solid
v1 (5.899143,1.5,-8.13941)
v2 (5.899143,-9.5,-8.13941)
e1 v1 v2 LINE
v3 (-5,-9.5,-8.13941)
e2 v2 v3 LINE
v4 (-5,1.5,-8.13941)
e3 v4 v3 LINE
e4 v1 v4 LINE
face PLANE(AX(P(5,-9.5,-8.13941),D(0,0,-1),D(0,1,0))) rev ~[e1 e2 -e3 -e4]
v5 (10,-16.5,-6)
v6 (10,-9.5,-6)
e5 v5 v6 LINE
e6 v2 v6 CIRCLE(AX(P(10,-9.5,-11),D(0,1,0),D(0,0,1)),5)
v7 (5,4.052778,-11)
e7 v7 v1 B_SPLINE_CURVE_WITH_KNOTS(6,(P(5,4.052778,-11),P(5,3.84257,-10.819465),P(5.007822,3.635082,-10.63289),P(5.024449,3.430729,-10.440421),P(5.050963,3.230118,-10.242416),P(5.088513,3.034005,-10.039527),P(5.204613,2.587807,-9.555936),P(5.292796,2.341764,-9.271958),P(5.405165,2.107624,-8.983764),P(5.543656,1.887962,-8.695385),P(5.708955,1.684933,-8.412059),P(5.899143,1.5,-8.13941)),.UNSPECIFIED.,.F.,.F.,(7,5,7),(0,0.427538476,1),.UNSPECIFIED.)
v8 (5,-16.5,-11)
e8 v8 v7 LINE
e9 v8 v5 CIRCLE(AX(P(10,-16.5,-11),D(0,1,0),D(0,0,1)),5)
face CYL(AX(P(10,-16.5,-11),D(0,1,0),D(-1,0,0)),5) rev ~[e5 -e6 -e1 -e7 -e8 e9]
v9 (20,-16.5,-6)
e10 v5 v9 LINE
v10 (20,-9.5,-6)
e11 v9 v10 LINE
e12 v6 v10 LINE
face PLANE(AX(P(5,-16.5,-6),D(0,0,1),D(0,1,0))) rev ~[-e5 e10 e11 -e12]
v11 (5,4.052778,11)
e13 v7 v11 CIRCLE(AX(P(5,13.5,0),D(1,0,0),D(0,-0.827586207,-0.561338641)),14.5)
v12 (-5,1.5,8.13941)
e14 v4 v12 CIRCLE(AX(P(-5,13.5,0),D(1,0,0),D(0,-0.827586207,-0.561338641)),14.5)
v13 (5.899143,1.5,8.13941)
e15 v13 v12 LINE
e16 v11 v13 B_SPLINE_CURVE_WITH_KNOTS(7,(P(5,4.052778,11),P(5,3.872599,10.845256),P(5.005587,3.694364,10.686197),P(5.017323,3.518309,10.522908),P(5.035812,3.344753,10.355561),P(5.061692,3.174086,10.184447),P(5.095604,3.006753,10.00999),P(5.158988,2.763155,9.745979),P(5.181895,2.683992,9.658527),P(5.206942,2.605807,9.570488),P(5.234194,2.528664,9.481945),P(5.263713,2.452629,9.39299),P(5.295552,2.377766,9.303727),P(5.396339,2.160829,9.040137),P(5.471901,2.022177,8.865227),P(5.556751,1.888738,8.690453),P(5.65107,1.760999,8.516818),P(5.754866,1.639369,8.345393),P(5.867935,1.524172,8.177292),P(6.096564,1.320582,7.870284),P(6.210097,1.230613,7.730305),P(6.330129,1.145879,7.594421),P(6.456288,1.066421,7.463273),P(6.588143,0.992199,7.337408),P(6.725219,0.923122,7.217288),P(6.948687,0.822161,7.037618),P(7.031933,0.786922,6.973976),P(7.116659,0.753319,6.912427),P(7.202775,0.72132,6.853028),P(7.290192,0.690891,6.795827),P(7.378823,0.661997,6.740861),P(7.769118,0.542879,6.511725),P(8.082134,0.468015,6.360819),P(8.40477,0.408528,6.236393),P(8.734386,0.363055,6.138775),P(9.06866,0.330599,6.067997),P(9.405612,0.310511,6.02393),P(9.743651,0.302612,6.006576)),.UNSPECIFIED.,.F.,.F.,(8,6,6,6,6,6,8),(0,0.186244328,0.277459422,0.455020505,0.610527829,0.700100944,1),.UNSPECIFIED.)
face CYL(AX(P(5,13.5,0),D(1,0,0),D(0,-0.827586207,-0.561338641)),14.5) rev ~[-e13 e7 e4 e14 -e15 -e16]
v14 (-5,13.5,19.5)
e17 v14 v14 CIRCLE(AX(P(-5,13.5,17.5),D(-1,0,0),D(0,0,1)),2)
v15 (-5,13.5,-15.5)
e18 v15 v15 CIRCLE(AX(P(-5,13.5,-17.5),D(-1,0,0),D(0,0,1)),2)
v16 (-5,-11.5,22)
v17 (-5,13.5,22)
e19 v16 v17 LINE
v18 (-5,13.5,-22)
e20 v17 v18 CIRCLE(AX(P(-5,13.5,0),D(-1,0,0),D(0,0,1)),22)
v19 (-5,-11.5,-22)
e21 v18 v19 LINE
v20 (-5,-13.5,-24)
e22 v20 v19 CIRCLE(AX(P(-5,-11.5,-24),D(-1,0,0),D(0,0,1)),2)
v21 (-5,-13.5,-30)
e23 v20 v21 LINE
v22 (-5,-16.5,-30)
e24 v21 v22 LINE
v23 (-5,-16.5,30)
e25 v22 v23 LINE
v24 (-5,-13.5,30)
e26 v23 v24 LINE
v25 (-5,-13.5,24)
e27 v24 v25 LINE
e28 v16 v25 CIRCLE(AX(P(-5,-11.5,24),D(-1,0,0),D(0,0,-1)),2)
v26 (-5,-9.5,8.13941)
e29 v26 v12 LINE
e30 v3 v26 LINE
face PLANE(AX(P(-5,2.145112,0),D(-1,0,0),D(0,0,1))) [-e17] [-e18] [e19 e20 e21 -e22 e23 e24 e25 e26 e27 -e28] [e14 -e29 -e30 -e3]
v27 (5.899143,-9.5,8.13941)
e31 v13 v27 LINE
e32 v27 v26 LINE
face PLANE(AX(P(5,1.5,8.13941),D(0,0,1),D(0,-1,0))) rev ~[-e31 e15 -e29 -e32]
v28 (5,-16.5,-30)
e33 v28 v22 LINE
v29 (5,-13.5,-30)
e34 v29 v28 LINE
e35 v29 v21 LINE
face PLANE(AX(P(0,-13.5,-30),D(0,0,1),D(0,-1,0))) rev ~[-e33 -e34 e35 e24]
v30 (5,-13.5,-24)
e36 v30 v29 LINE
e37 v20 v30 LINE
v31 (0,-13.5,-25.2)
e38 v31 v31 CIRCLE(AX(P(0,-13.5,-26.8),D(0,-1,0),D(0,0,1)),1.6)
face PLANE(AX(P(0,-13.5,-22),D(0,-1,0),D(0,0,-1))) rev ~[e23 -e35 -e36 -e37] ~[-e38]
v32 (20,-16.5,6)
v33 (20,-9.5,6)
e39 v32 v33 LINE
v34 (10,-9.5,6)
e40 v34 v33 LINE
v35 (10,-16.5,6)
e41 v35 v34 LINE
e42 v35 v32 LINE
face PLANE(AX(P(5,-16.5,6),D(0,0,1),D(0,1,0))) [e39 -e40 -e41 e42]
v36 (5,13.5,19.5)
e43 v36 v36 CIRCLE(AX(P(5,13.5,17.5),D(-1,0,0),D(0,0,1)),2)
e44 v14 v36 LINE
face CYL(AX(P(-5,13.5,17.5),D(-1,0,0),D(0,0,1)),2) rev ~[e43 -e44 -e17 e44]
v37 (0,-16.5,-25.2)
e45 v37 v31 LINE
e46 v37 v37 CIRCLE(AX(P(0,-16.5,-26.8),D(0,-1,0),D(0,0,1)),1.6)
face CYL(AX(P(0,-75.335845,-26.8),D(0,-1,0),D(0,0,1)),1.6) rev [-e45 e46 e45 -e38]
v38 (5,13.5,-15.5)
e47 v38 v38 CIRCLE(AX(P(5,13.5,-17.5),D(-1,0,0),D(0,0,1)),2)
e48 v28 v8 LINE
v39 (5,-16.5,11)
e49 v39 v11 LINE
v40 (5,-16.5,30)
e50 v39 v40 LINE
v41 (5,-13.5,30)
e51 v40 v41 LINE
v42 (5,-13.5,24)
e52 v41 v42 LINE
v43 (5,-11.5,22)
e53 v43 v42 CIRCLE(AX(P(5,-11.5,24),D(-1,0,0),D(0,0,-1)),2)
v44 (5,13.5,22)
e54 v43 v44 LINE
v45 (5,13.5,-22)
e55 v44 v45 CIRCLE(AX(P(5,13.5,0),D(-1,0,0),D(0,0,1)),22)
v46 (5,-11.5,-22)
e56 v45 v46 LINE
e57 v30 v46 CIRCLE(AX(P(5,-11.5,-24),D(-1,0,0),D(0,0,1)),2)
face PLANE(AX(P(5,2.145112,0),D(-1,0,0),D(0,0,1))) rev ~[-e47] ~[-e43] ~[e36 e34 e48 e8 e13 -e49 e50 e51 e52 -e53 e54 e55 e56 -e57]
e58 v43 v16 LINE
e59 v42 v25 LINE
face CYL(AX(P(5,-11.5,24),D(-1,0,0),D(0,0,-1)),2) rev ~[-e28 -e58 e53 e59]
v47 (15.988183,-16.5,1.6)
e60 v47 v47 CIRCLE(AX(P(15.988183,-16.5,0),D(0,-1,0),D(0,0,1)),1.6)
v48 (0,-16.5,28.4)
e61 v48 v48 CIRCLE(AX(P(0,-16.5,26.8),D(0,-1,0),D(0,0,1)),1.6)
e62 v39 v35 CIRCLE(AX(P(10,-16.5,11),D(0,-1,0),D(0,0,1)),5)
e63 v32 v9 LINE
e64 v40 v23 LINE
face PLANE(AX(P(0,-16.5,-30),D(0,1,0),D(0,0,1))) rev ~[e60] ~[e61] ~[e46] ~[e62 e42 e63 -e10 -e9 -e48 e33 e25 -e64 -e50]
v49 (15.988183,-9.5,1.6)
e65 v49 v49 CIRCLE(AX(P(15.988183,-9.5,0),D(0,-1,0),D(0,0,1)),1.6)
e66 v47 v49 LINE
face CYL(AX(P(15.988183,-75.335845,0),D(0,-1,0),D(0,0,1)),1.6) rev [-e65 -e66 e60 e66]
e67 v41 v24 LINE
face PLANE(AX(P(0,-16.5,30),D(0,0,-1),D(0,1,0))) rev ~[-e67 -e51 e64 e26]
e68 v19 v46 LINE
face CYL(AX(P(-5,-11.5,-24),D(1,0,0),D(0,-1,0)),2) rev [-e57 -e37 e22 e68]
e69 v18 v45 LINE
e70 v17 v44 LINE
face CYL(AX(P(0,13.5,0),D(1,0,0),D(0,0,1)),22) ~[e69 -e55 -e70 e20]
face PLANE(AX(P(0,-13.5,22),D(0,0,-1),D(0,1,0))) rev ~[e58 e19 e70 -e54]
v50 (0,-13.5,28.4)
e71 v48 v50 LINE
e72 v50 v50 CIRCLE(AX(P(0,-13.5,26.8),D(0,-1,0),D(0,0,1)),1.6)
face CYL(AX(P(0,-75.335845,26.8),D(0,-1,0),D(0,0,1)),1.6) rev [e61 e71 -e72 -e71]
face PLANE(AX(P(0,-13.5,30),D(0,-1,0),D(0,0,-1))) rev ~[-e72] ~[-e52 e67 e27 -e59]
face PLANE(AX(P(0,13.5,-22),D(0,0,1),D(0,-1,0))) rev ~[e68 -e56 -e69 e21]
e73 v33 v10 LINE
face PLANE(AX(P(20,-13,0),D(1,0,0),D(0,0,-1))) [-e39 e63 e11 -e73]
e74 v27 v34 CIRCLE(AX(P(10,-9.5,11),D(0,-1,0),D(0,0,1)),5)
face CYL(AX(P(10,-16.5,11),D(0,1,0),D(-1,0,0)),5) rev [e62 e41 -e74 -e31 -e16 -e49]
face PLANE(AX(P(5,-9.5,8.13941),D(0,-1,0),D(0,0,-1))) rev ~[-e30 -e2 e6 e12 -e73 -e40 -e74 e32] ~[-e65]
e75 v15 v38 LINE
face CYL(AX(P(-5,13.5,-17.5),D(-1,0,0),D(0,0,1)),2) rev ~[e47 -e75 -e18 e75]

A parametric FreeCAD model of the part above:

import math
import FreeCAD as App
import Part
import Sketcher
Q = App.Units.Quantity


def edges_at(feature, points):
    """Names of the edges that pass closest to the given points."""
    edges = feature.Shape.Edges
    near = lambda p: min(range(len(edges)), key=lambda i: edges[i].distToShape(Part.Vertex(*p))[0])
    return sorted({f"Edge{near(p) + 1}" for p in points})

doc = App.newDocument("Part")
body = doc.addObject("PartDesign::Body", "Body")

# Sketch on YZ plane
sketch1 = body.newObject("Sketcher::SketchObject", "Sketch")
sketch1.AttachmentSupport = (doc.getObject("YZ_Plane"), [""])
sketch1.MapMode = "FlatFace"
sketch1.addGeometry([
    Part.LineSegment(App.Vector(-13.5, -30, 0), App.Vector(-13.5, -22, 0)),  # 0
    Part.LineSegment(App.Vector(-13.5, -22, 0), App.Vector(13.5, -22, 0)),  # 1
    Part.ArcOfCircle(Part.Circle(App.Vector(13.5, 0, 0), App.Vector(0, 0, 1), 22), math.radians(-90), math.radians(90)),  # 2
    Part.LineSegment(App.Vector(13.5, 22, 0), App.Vector(-13.5, 22, 0)),  # 3
    Part.LineSegment(App.Vector(-13.5, 22, 0), App.Vector(-13.5, 30, 0)),  # 4
    Part.LineSegment(App.Vector(-13.5, 30, 0), App.Vector(-16.5, 30, 0)),  # 5
    Part.LineSegment(App.Vector(-16.5, 30, 0), App.Vector(-16.5, -30, 0)),  # 6
    Part.LineSegment(App.Vector(-16.5, -30, 0), App.Vector(-13.5, -30, 0)),  # 7
], False)
sketch1.addConstraint([
    Sketcher.Constraint("Coincident", 0, 2, 1, 1),
    Sketcher.Constraint("Tangent", 1, 2, 2, 1),
    Sketcher.Constraint("Tangent", 2, 2, 3, 1),
    Sketcher.Constraint("Coincident", 3, 2, 4, 1),
    Sketcher.Constraint("Coincident", 4, 2, 5, 1),
    Sketcher.Constraint("Coincident", 5, 2, 6, 1),
    Sketcher.Constraint("Coincident", 6, 2, 7, 1),
    Sketcher.Constraint("Coincident", 7, 2, 0, 1),
    Sketcher.Constraint("Vertical", 0),
    Sketcher.Constraint("Horizontal", 1),
    Sketcher.Constraint("Horizontal", 3),
    Sketcher.Constraint("Vertical", 4),
    Sketcher.Constraint("Horizontal", 5),
    Sketcher.Constraint("Vertical", 6),
    Sketcher.Constraint("Horizontal", 7),
    Sketcher.Constraint("Symmetric", 0, 2, 2, 2, -1, 1),
    Sketcher.Constraint("Symmetric", 4, 2, 7, 2, -1),
    Sketcher.Constraint("Radius", 2, Q("22 mm")),
    Sketcher.Constraint("DistanceX", 1, 1, 1, 2, Q("27 mm")),
    Sketcher.Constraint("DistanceX", 5, 2, 5, 1, Q("3 mm")),
    Sketcher.Constraint("DistanceY", 0, 1, 0, 2, Q("8 mm")),
])
pad1 = body.newObject("PartDesign::Pad", "Pad")
pad1.Profile = sketch1
pad1.Length = 10
pad1.Midplane = True

# Sketch on YZ plane
sketch2 = body.newObject("Sketcher::SketchObject", "Sketch001")
sketch2.AttachmentSupport = (doc.getObject("YZ_Plane"), [""])
sketch2.MapMode = "FlatFace"
sketch2.AttachmentOffset = App.Placement(App.Vector(0, 0, 5), App.Rotation())
sketch2.addGeometry([
    Part.LineSegment(App.Vector(2, 8, 0), App.Vector(-10, 8, 0)),
    Part.LineSegment(App.Vector(-10, 8, 0), App.Vector(-10, -8, 0)),
    Part.LineSegment(App.Vector(-10, -8, 0), App.Vector(2, -8, 0)),
    Part.ArcOfCircle(Part.Circle(App.Vector(14, 0, 0), App.Vector(0, 0, 1), 14), math.radians(-146), math.radians(146)),
], False)
sketch2.addConstraint([
    Sketcher.Constraint("Coincident", 0, 2, 1, 1),
    Sketcher.Constraint("Coincident", 1, 2, 2, 1),
    Sketcher.Constraint("Coincident", 2, 2, 3, 1),
    Sketcher.Constraint("Coincident", 3, 2, 0, 1),
    Sketcher.Constraint("Horizontal", 0),
    Sketcher.Constraint("Vertical", 1),
    Sketcher.Constraint("Horizontal", 2),
    Sketcher.Constraint("Symmetric", 2, 2, 3, 2, -1),
    Sketcher.Constraint("Radius", 3, Q("14.5 mm")),
    Sketcher.Constraint("DistanceX", 0, 2, 0, 1, Q("11 mm")),
    Sketcher.Constraint("DistanceX", 0, 2, 3, 3, Q("23 mm")),
    Sketcher.Constraint("DistanceX", -1, 1, 3, 3, Q("13.5 mm")),
])
pocket1 = body.newObject("PartDesign::Pocket", "Pocket")
pocket1.Profile = sketch2
pocket1.Type = "ThroughAll"

# Sketch on YZ plane
sketch3 = body.newObject("Sketcher::SketchObject", "Sketch002")
sketch3.AttachmentSupport = (doc.getObject("YZ_Plane"), [""])
sketch3.MapMode = "FlatFace"
sketch3.AttachmentOffset = App.Placement(App.Vector(0, 0, -5), App.Rotation())
sketch3.addGeometry([
    Part.Circle(App.Vector(13.5, 17.5, 0), App.Vector(0, 0, 1), 2),
    Part.Circle(App.Vector(13.5, -17.5, 0), App.Vector(0, 0, 1), 2),
], False)
sketch3.addConstraint([
    Sketcher.Constraint("Equal", 0, 1),
    Sketcher.Constraint("Symmetric", 0, 3, 1, 3, -1),
    Sketcher.Constraint("Diameter", 0, Q("4 mm")),
    Sketcher.Constraint("DistanceY", 1, 3, 0, 3, Q("35 mm")),
    Sketcher.Constraint("DistanceX", -1, 1, 0, 3, Q("13.5 mm")),
])
pocket2 = body.newObject("PartDesign::Pocket", "Pocket001")
pocket2.Profile = sketch3
pocket2.Type = "ThroughAll"
pocket2.Reversed = True
doc.recompute()

fillet = body.newObject("PartDesign::Fillet", "Fillet")
fillet.Base = (pocket2, edges_at(pocket2, [(0, -13.5, -22), (0, -13.5, 22)]))
fillet.Radius = 2

# Sketch on YZ plane
sketch4 = body.newObject("Sketcher::SketchObject", "Sketch003")
sketch4.AttachmentSupport = (doc.getObject("YZ_Plane"), [""])
sketch4.MapMode = "FlatFace"
sketch4.AttachmentOffset = App.Placement(App.Vector(0, 0, 5), App.Rotation())
sketch4.addGeometry([
    Part.LineSegment(App.Vector(-10, 6, 0), App.Vector(-16, 6, 0)),
    Part.LineSegment(App.Vector(-16, 6, 0), App.Vector(-16, -6, 0)),
    Part.LineSegment(App.Vector(-16, -6, 0), App.Vector(-10, -6, 0)),
    Part.LineSegment(App.Vector(-10, -6, 0), App.Vector(-10, 6, 0)),
], False)
sketch4.addConstraint([
    Sketcher.Constraint("Coincident", 0, 2, 1, 1),
    Sketcher.Constraint("Coincident", 1, 2, 2, 1),
    Sketcher.Constraint("Coincident", 2, 2, 3, 1),
    Sketcher.Constraint("Coincident", 3, 2, 0, 1),
    Sketcher.Constraint("Horizontal", 0),
    Sketcher.Constraint("Vertical", 1),
    Sketcher.Constraint("Horizontal", 2),
    Sketcher.Constraint("Vertical", 3),
    Sketcher.Constraint("DistanceX", 0, 2, 0, 1, Q("7 mm")),
    Sketcher.Constraint("DistanceY", 1, 2, 1, 1, Q("12 mm")),
    Sketcher.Constraint("DistanceY", -1, 1, 0, 2, Q("6 mm")),
    Sketcher.Constraint("DistanceX", 0, 2, -1, 1, Q("16.5 mm")),
])
pad2 = body.newObject("PartDesign::Pad", "Pad001")
pad2.Profile = sketch4
pad2.Length = 15

# Sketch on XZ plane
sketch5 = body.newObject("Sketcher::SketchObject", "Sketch004")
sketch5.AttachmentSupport = (doc.getObject("XZ_Plane"), [""])
sketch5.MapMode = "FlatFace"
sketch5.AttachmentOffset = App.Placement(App.Vector(0, 0, 13.5), App.Rotation())
sketch5.addGeometry([
    Part.Circle(App.Vector(0, -26.8, 0), App.Vector(0, 0, 1), 1.6),
    Part.Circle(App.Vector(0, 26.8, 0), App.Vector(0, 0, 1), 1.6),
    Part.Circle(App.Vector(16, 0, 0), App.Vector(0, 0, 1), 1.6),
], False)
sketch5.addConstraint([
    Sketcher.Constraint("Equal", 0, 1),
    Sketcher.Constraint("Equal", 1, 2),
    Sketcher.Constraint("Symmetric", 0, 3, 1, 3, -1, 1),
    Sketcher.Constraint("PointOnObject", 0, 3, -2),
    Sketcher.Constraint("PointOnObject", 2, 3, -1),
    Sketcher.Constraint("Diameter", 0, Q("3.2 mm")),
    Sketcher.Constraint("DistanceY", 0, 3, -1, 1, Q("26.8 mm")),
    Sketcher.Constraint("DistanceX", -1, 1, 2, 3, Q("15.988183 mm")),
])
pocket3 = body.newObject("PartDesign::Pocket", "Pocket002")
pocket3.Profile = sketch5
pocket3.Type = "ThroughAll"
pocket3.Midplane = True
doc.recompute()

fillet2 = body.newObject("PartDesign::Fillet", "Fillet001")
fillet2.Base = (pocket3, edges_at(pocket3, [(5, -13, -6), (5, -13, 6)]))
fillet2.Radius = 5

doc.recompute()
